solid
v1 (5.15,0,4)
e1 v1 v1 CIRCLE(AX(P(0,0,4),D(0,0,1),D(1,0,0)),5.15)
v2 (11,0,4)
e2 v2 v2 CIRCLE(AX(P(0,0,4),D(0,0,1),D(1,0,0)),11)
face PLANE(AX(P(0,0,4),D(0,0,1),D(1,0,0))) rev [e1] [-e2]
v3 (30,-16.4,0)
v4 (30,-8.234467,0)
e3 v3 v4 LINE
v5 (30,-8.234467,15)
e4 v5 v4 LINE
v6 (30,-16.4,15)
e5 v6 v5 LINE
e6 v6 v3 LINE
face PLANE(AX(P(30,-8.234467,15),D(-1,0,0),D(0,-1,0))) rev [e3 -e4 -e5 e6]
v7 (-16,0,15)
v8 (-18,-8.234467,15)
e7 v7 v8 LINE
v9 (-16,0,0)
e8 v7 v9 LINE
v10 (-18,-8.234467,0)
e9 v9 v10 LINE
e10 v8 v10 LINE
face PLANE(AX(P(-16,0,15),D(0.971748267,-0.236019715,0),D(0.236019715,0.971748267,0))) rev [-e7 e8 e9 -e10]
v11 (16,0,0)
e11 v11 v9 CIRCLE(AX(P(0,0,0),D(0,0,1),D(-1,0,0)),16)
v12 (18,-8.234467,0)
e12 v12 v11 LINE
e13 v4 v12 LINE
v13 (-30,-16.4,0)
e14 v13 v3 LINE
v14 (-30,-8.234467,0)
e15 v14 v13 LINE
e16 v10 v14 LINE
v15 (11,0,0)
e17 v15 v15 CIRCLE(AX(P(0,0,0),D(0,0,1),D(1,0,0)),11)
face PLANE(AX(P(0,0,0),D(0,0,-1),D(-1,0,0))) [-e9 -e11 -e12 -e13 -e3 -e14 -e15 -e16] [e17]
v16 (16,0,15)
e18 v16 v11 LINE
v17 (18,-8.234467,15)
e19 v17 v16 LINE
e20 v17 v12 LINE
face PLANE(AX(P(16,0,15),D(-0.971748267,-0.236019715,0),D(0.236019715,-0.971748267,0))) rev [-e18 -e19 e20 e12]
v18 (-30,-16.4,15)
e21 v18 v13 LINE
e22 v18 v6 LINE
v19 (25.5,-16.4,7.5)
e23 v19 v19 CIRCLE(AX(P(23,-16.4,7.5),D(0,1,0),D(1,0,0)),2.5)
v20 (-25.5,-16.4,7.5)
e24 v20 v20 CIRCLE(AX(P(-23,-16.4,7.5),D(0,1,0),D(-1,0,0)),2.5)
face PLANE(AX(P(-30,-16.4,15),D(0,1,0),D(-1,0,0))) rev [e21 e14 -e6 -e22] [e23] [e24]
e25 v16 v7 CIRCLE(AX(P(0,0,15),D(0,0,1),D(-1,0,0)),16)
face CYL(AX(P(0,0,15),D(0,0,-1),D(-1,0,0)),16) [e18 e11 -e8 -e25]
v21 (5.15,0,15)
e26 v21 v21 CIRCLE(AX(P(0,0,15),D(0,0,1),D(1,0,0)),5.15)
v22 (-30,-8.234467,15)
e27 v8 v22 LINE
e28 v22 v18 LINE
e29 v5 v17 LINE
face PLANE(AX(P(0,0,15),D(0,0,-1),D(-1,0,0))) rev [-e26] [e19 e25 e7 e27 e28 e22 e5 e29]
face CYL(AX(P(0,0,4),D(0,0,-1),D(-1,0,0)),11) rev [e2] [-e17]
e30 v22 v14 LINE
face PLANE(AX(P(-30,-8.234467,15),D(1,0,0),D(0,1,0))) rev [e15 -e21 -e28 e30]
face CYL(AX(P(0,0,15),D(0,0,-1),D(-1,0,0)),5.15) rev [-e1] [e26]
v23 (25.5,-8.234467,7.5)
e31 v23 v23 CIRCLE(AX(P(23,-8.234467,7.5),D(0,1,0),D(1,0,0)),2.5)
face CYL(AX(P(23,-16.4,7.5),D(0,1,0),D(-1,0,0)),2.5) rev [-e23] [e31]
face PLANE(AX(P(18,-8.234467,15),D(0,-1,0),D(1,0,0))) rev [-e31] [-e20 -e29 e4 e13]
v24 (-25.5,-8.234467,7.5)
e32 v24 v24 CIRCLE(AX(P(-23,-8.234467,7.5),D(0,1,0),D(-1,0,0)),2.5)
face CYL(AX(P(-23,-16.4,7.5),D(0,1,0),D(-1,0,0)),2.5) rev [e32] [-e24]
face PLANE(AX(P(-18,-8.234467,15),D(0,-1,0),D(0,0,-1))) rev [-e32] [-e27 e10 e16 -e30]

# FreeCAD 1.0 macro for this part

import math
import FreeCAD as App
import Part
import Sketcher

V = App.Vector
Q = App.Units.Quantity

doc = App.newDocument("Part")
body = doc.addObject("PartDesign::Body", "Body")

sketch1 = doc.addObject("Sketcher::SketchObject", "Sketch")
body.addObject(sketch1)
sketch1.AttachmentSupport = (doc.XY_Plane, [""])
sketch1.MapMode = "FlatFace"
sketch1.addGeometry(Part.LineSegment(V(-16, 0, 0), V(-18, -8, 0)), False)
sketch1.addGeometry(Part.LineSegment(V(-18, -8, 0), V(-30, -8, 0)), False)
sketch1.addGeometry(Part.LineSegment(V(-30, -8, 0), V(-30, -16, 0)), False)
sketch1.addGeometry(Part.LineSegment(V(-30, -16, 0), V(30, -16, 0)), False)
sketch1.addGeometry(Part.LineSegment(V(30, -16, 0), V(30, -8, 0)), False)
sketch1.addGeometry(Part.LineSegment(V(30, -8, 0), V(18, -8, 0)), False)
sketch1.addGeometry(Part.LineSegment(V(18, -8, 0), V(16, 0, 0)), False)
sketch1.addGeometry(Part.ArcOfCircle(Part.Circle(V(0, 0, 0), V(0, 0, 1), 16), math.radians(0), math.radians(180)), False)
sketch1.addGeometry(Part.Circle(V(0, 0, 0), V(0, 0, 1), 5), False)
sketch1.addConstraint(Sketcher.Constraint("Coincident", 0, 2, 1, 1))
sketch1.addConstraint(Sketcher.Constraint("Coincident", 1, 2, 2, 1))
sketch1.addConstraint(Sketcher.Constraint("Coincident", 2, 2, 3, 1))
sketch1.addConstraint(Sketcher.Constraint("Coincident", 3, 2, 4, 1))
sketch1.addConstraint(Sketcher.Constraint("Coincident", 4, 2, 5, 1))
sketch1.addConstraint(Sketcher.Constraint("Coincident", 5, 2, 6, 1))
sketch1.addConstraint(Sketcher.Constraint("Coincident", 6, 2, 7, 1))
sketch1.addConstraint(Sketcher.Constraint("Coincident", 7, 2, 0, 1))
sketch1.addConstraint(Sketcher.Constraint("Horizontal", 1))
sketch1.addConstraint(Sketcher.Constraint("Vertical", 2))
sketch1.addConstraint(Sketcher.Constraint("Horizontal", 3))
sketch1.addConstraint(Sketcher.Constraint("Vertical", 4))
sketch1.addConstraint(Sketcher.Constraint("Horizontal", 5))
sketch1.addConstraint(Sketcher.Constraint("Coincident", 7, 3, -1, 1))
sketch1.addConstraint(Sketcher.Constraint("Coincident", 8, 3, -1, 1))
sketch1.addConstraint(Sketcher.Constraint("Symmetric", 1, 2, 4, 2, -2))
sketch1.addConstraint(Sketcher.Constraint("PointOnObject", 6, 2, -1))
sketch1.addConstraint(Sketcher.Constraint("PointOnObject", 7, 2, -1))
sketch1.addConstraint(Sketcher.Constraint("Equal", 1, 5))
sketch1.addConstraint(Sketcher.Constraint("Radius", 7, Q("16 mm")))
sketch1.addConstraint(Sketcher.Constraint("Diameter", 8, Q("10.3 mm")))
sketch1.addConstraint(Sketcher.Constraint("DistanceX", 1, 2, 1, 1, Q("12 mm")))
sketch1.addConstraint(Sketcher.Constraint("DistanceX", 3, 1, 3, 2, Q("60 mm")))
sketch1.addConstraint(Sketcher.Constraint("DistanceY", 2, 2, -1, 1, Q("16.4 mm")))
sketch1.addConstraint(Sketcher.Constraint("Distance", 0, Q("8.473868 mm")))
pad1 = doc.addObject("PartDesign::Pad", "Pad")
body.addObject(pad1)
pad1.Profile = sketch1
pad1.Length = 15

sketch2 = doc.addObject("Sketcher::SketchObject", "Sketch001")
body.addObject(sketch2)
sketch2.AttachmentSupport = (doc.XY_Plane, [""])
sketch2.MapMode = "FlatFace"
sketch2.addGeometry(Part.Circle(V(0, 0, 0), V(0, 0, 1), 11), False)
sketch2.addConstraint(Sketcher.Constraint("Coincident", 0, 3, -1, 1))
sketch2.addConstraint(Sketcher.Constraint("Diameter", 0, Q("22 mm")))
pocket1 = doc.addObject("PartDesign::Pocket", "Pocket")
body.addObject(pocket1)
pocket1.Profile = sketch2
pocket1.Length = 4
pocket1.Reversed = True

sketch3 = doc.addObject("Sketcher::SketchObject", "Sketch002")
body.addObject(sketch3)
sketch3.AttachmentSupport = (doc.XZ_Plane, [""])
sketch3.MapMode = "FlatFace"
sketch3.AttachmentOffset = App.Placement(V(0, 0, 8.234467), App.Rotation())
sketch3.addGeometry(Part.Circle(V(-23, 7.5, 0), V(0, 0, 1), 2.5), False)
sketch3.addGeometry(Part.Circle(V(23, 7.5, 0), V(0, 0, 1), 2.5), False)
sketch3.addConstraint(Sketcher.Constraint("Equal", 0, 1))
sketch3.addConstraint(Sketcher.Constraint("Symmetric", 0, 3, 1, 3, -2))
sketch3.addConstraint(Sketcher.Constraint("Diameter", 0, Q("5 mm")))
sketch3.addConstraint(Sketcher.Constraint("DistanceX", 0, 3, -1, 1, Q("23 mm")))
sketch3.addConstraint(Sketcher.Constraint("DistanceY", -1, 1, 0, 3, Q("7.5 mm")))
pocket2 = doc.addObject("PartDesign::Pocket", "Pocket001")
body.addObject(pocket2)
pocket2.Profile = sketch3
pocket2.Type = "ThroughAll"
pocket2.Reversed = True

doc.recompute()
